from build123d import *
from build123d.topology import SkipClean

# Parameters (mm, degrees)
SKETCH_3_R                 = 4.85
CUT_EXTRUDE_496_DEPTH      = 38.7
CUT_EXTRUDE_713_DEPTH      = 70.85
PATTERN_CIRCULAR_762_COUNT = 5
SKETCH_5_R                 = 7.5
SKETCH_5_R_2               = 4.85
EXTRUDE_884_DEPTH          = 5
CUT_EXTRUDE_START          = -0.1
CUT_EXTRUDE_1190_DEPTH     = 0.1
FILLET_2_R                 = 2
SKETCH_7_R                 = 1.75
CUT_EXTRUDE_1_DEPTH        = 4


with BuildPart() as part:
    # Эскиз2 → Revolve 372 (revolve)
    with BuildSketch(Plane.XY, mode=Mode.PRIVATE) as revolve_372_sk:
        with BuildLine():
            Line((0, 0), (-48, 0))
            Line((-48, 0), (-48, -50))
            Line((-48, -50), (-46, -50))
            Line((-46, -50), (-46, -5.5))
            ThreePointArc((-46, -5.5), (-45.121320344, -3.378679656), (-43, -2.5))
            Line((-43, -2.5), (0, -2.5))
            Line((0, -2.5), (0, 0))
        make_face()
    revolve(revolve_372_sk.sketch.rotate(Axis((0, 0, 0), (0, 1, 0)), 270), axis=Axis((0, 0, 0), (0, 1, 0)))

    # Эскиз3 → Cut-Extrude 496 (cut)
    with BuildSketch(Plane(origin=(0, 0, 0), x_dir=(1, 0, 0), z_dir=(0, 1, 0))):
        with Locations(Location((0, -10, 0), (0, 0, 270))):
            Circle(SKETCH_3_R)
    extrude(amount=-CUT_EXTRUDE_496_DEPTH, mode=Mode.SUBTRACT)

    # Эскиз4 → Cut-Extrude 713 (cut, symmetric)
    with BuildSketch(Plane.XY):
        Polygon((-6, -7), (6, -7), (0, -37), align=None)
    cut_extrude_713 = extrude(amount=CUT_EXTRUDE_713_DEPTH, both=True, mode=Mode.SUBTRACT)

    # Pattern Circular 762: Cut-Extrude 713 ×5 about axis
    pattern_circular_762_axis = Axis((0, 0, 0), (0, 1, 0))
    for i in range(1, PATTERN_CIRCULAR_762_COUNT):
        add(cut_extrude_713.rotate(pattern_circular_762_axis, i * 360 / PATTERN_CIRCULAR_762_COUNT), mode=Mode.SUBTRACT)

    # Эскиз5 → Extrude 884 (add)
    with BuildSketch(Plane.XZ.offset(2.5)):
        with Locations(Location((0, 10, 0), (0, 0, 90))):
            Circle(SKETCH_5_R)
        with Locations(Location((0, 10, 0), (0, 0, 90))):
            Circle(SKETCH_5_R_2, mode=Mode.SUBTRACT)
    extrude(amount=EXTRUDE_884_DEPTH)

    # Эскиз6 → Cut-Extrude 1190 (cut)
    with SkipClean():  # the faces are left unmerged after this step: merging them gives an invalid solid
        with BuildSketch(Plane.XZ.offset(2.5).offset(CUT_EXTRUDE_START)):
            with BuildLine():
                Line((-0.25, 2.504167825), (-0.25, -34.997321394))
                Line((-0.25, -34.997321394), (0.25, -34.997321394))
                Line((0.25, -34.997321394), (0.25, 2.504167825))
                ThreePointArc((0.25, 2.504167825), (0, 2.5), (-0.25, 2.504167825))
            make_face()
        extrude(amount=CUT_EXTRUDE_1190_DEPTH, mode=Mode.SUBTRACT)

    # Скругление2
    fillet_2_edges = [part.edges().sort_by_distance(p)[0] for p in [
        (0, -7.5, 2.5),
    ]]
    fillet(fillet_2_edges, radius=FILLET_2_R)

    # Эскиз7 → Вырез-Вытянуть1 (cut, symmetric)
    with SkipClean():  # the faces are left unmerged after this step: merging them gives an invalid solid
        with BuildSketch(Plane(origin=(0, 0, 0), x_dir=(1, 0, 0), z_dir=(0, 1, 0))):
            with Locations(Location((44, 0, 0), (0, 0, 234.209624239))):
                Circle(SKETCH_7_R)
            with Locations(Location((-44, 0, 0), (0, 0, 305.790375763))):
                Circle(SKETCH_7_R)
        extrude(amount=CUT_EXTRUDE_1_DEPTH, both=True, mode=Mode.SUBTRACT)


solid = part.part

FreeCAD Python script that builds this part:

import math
import FreeCAD as App
import Part
import Sketcher

V = App.Vector
Q = App.Units.Quantity


def edges_at(feature, points):
    """Names of the edges that pass closest to the given points."""
    edges = feature.Shape.Edges
    near = lambda p: min(range(len(edges)), key=lambda i: edges[i].distToShape(Part.Vertex(*p))[0])
    return sorted({f"Edge{near(p) + 1}" for p in points})

doc = App.newDocument("Part")
body = doc.addObject("PartDesign::Body", "Body")

# Sketch on XY plane
sketch1 = body.newObject("Sketcher::SketchObject", "Sketch")
sketch1.AttachmentSupport = (doc.getObject("XY_Plane"), [""])
sketch1.MapMode = "FlatFace"
sketch1.addGeometry([
    Part.LineSegment(V(0, 0, 0), V(-48, 0, 0)),  # 0
    Part.LineSegment(V(-48, 0, 0), V(-48, -50, 0)),  # 1
    Part.LineSegment(V(-48, -50, 0), V(-46, -50, 0)),  # 2
    Part.LineSegment(V(-46, -50, 0), V(-46, -5.5, 0)),  # 3
    Part.ArcOfCircle(Part.Circle(V(-43, -5.5, 0), V(0, 0, 1), 3), math.radians(90), math.radians(180)),  # 4
    Part.LineSegment(V(-43, -2.5, 0), V(0, -2.5, 0)),  # 5
    Part.LineSegment(V(0, -2.5, 0), V(0, 0, 0)),  # 6
], False)
sketch1.addConstraint([
    Sketcher.Constraint("Coincident", 0, 2, 1, 1),
    Sketcher.Constraint("Coincident", 1, 2, 2, 1),
    Sketcher.Constraint("Coincident", 2, 2, 3, 1),
    Sketcher.Constraint("Tangent", 3, 2, 4, 2),
    Sketcher.Constraint("Tangent", 4, 1, 5, 1),
    Sketcher.Constraint("Coincident", 5, 2, 6, 1),
    Sketcher.Constraint("Coincident", 6, 2, 0, 1),
    Sketcher.Constraint("Horizontal", 0),
    Sketcher.Constraint("Vertical", 1),
    Sketcher.Constraint("Horizontal", 2),
    Sketcher.Constraint("Vertical", 3),
    Sketcher.Constraint("Horizontal", 5),
    Sketcher.Constraint("Vertical", 6),
    Sketcher.Constraint("Coincident", 6, 2, -1, 1),
    Sketcher.Constraint("Radius", 4, Q("3 mm")),
    Sketcher.Constraint("DistanceX", 0, 2, 0, 1, Q("48 mm")),
    Sketcher.Constraint("DistanceX", 2, 1, 2, 2, Q("2 mm")),
    Sketcher.Constraint("DistanceY", 1, 2, 1, 1, Q("50 mm")),
    Sketcher.Constraint("DistanceY", 3, 1, 3, 2, Q("44.5 mm")),
])
revolution = body.newObject("PartDesign::Revolution", "Revolution")
revolution.Profile = sketch1
revolution.ReferenceAxis = (sketch1, ["V_Axis"])
revolution.Angle = 360

# Sketch on XZ plane
sketch2 = body.newObject("Sketcher::SketchObject", "Sketch001")
sketch2.AttachmentSupport = (doc.getObject("XZ_Plane"), [""])
sketch2.MapMode = "FlatFace"
sketch2.addGeometry(Part.Circle(V(0, 10, 0), V(0, 0, 1), 4.8), False)
sketch2.addConstraint([
    Sketcher.Constraint("PointOnObject", 0, 3, -2),
    Sketcher.Constraint("Diameter", 0, Q("9.7 mm")),
    Sketcher.Constraint("DistanceY", -1, 1, 0, 3, Q("10 mm")),
])
pocket1 = body.newObject("PartDesign::Pocket", "Pocket")
pocket1.Profile = sketch2
pocket1.Length = 38.7
pocket1.Reversed = True

# Sketch on XY plane
sketch3 = body.newObject("Sketcher::SketchObject", "Sketch002")
sketch3.AttachmentSupport = (doc.getObject("XY_Plane"), [""])
sketch3.MapMode = "FlatFace"
sketch3.addGeometry([
    Part.LineSegment(V(6, -7, 0), V(-6, -7, 0)),
    Part.LineSegment(V(-6, -7, 0), V(0, -37, 0)),
    Part.LineSegment(V(0, -37, 0), V(6, -7, 0)),
], False)
sketch3.addConstraint([
    Sketcher.Constraint("Coincident", 0, 2, 1, 1),
    Sketcher.Constraint("Coincident", 1, 2, 2, 1),
    Sketcher.Constraint("Coincident", 2, 2, 0, 1),
    Sketcher.Constraint("Horizontal", 0),
    Sketcher.Constraint("PointOnObject", 1, 2, -2),
    Sketcher.Constraint("Equal", 1, 2),
    Sketcher.Constraint("DistanceX", 0, 2, 0, 1, Q("12 mm")),
    Sketcher.Constraint("DistanceY", 0, 2, -1, 1, Q("7 mm")),
    Sketcher.Constraint("DistanceY", 1, 2, -1, 1, Q("37 mm")),
])
pocket2 = body.newObject("PartDesign::Pocket", "Pocket001")
pocket2.Profile = sketch3
pocket2.Length = 141.7
pocket2.Midplane = True
doc.recompute()

polarpattern = body.newObject("PartDesign::PolarPattern", "PolarPattern")
polarpattern.Originals = [pocket2]
polarpattern.Axis = (doc.getObject("Y_Axis"), [""])
polarpattern.Angle = 360
polarpattern.Occurrences = 5
body.Tip = polarpattern

# Sketch on XZ plane
sketch4 = body.newObject("Sketcher::SketchObject", "Sketch003")
sketch4.AttachmentSupport = (doc.getObject("XZ_Plane"), [""])
sketch4.MapMode = "FlatFace"
sketch4.AttachmentOffset = App.Placement(V(0, 0, 2.5), App.Rotation())
sketch4.addGeometry([
    Part.Circle(V(0, 10, 0), V(0, 0, 1), 7.5),
    Part.Circle(V(0, 10, 0), V(0, 0, 1), 4.8),
], False)
sketch4.addConstraint([
    Sketcher.Constraint("Coincident", 1, 3, 0, 3),
    Sketcher.Constraint("PointOnObject", 0, 3, -2),
    Sketcher.Constraint("Diameter", 0, Q("15 mm")),
    Sketcher.Constraint("Diameter", 1, Q("9.7 mm")),
    Sketcher.Constraint("DistanceY", -1, 1, 0, 3, Q("10 mm")),
])
pad1 = body.newObject("PartDesign::Pad", "Pad")
pad1.Profile = sketch4
pad1.Length = 5

# Sketch on XZ plane
sketch5 = body.newObject("Sketcher::SketchObject", "Sketch004")
sketch5.AttachmentSupport = (doc.getObject("XZ_Plane"), [""])
sketch5.MapMode = "FlatFace"
sketch5.AttachmentOffset = App.Placement(V(0, 0, 2.4), App.Rotation())
sketch5.addGeometry([
    Part.LineSegment(V(-0.2, 2.5, 0), V(-0.2, -35, 0)),
    Part.LineSegment(V(-0.2, -35, 0), V(0.2, -35, 0)),
    Part.LineSegment(V(0.2, -35, 0), V(0.2, 2.5, 0)),
    Part.ArcOfCircle(Part.Circle(V(0, 10, 0), V(0, 0, 1), 7.5), math.radians(-91.91), math.radians(-88.09)),
], False)
sketch5.addConstraint([
    Sketcher.Constraint("Coincident", 0, 2, 1, 1),
    Sketcher.Constraint("Coincident", 1, 2, 2, 1),
    Sketcher.Constraint("Coincident", 2, 2, 3, 2),
    Sketcher.Constraint("Coincident", 3, 1, 0, 1),
    Sketcher.Constraint("Vertical", 0),
    Sketcher.Constraint("Horizontal", 1),
    Sketcher.Constraint("Vertical", 2),
    Sketcher.Constraint("Symmetric", 2, 2, 3, 1, -2),
    Sketcher.Constraint("Radius", 3, Q("7.499999 mm")),
    Sketcher.Constraint("DistanceX", 1, 1, 1, 2, Q("0.5 mm")),
    Sketcher.Constraint("DistanceY", -1, 1, 3, 3, Q("9.999999 mm")),
    Sketcher.Constraint("DistanceY", 0, 2, 0, 1, Q("37.501489 mm")),
])
pocket3 = body.newObject("PartDesign::Pocket", "Pocket002")
pocket3.Profile = sketch5
pocket3.Length = 0.1
pocket3.Reversed = True
doc.recompute()

fillet = body.newObject("PartDesign::Fillet", "Fillet")
fillet.Base = (pocket3, edges_at(pocket3, [(0, -7.5, 2.5)]))
fillet.Radius = 2

# Sketch on XZ plane
sketch6 = body.newObject("Sketcher::SketchObject", "Sketch005")
sketch6.AttachmentSupport = (doc.getObject("XZ_Plane"), [""])
sketch6.MapMode = "FlatFace"
sketch6.addGeometry([
    Part.Circle(V(44, 0, 0), V(0, 0, 1), 1.8),
    Part.Circle(V(-44, 0, 0), V(0, 0, 1), 1.8),
], False)
sketch6.addConstraint([
    Sketcher.Constraint("Equal", 0, 1),
    Sketcher.Constraint("Symmetric", 0, 3, 1, 3, -1, 1),
    Sketcher.Constraint("PointOnObject", 0, 3, -1),
    Sketcher.Constraint("Diameter", 0, Q("3.5 mm")),
    Sketcher.Constraint("DistanceX", -1, 1, 0, 3, Q("44 mm")),
])
pocket4 = body.newObject("PartDesign::Pocket", "Pocket003")
pocket4.Profile = sketch6
pocket4.Length = 8
pocket4.Midplane = True

doc.recompute()
